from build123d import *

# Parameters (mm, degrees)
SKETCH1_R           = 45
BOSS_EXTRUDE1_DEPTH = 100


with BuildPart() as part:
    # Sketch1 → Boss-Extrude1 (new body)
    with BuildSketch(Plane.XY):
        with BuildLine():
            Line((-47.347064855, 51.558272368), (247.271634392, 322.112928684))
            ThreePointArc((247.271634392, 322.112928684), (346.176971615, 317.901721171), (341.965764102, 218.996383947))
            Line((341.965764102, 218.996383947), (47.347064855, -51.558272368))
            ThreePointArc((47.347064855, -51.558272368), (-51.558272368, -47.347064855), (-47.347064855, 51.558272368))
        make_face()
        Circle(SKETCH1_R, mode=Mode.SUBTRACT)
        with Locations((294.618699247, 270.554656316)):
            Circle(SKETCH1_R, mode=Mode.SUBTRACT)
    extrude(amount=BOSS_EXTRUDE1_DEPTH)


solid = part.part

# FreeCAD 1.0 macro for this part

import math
import FreeCAD as App
import Part
import Sketcher
from FreeCAD import Vector
Q = App.Units.Quantity

doc = App.newDocument("Part")
body = doc.addObject("PartDesign::Body", "Body")

sketch1 = body.newObject("Sketcher::SketchObject", "Sketch")
sketch1.AttachmentSupport = (doc.getObject("XY_Plane"), [""])
sketch1.MapMode = "FlatFace"
sketch1.addGeometry([
    Part.LineSegment(Vector(247, 322, 0), Vector(-47, 52, 0)),
    Part.ArcOfCircle(Part.Circle(Vector(0, 0, 0), Vector(0, 0, 1), 70), math.radians(133), math.radians(313)),
    Part.LineSegment(Vector(47, -52, 0), Vector(342, 219, 0)),
    Part.ArcOfCircle(Part.Circle(Vector(295, 271, 0), Vector(0, 0, 1), 70), math.radians(-47), math.radians(133)),
    Part.Circle(Vector(0, 0, 0), Vector(0, 0, 1), 45),
    Part.Circle(Vector(295, 271, 0), Vector(0, 0, 1), 45),
], False)
sketch1.addConstraint([
    Sketcher.Constraint("Tangent", 0, 2, 1, 1),
    Sketcher.Constraint("Tangent", 1, 2, 2, 1),
    Sketcher.Constraint("Tangent", 2, 2, 3, 1),
    Sketcher.Constraint("Tangent", 3, 2, 0, 1),
    Sketcher.Constraint("Coincident", 1, 3, -1, 1),
    Sketcher.Constraint("Coincident", 4, 3, -1, 1),
    Sketcher.Constraint("Coincident", 5, 3, 3, 3),
    Sketcher.Constraint("Equal", 1, 3),
    Sketcher.Constraint("Equal", 4, 5),
    Sketcher.Constraint("Diameter", 4, Q("90 mm")),
    Sketcher.Constraint("Radius", 1, Q("70 mm")),
    Sketcher.Constraint("Distance", 0, Q("400 mm")),
    Sketcher.Constraint("DistanceX", -1, 1, 3, 3, Q("294.618699 mm")),
])
pad1 = body.newObject("PartDesign::Pad", "Pad")
pad1.Profile = sketch1
pad1.Length = 100

doc.recompute()
